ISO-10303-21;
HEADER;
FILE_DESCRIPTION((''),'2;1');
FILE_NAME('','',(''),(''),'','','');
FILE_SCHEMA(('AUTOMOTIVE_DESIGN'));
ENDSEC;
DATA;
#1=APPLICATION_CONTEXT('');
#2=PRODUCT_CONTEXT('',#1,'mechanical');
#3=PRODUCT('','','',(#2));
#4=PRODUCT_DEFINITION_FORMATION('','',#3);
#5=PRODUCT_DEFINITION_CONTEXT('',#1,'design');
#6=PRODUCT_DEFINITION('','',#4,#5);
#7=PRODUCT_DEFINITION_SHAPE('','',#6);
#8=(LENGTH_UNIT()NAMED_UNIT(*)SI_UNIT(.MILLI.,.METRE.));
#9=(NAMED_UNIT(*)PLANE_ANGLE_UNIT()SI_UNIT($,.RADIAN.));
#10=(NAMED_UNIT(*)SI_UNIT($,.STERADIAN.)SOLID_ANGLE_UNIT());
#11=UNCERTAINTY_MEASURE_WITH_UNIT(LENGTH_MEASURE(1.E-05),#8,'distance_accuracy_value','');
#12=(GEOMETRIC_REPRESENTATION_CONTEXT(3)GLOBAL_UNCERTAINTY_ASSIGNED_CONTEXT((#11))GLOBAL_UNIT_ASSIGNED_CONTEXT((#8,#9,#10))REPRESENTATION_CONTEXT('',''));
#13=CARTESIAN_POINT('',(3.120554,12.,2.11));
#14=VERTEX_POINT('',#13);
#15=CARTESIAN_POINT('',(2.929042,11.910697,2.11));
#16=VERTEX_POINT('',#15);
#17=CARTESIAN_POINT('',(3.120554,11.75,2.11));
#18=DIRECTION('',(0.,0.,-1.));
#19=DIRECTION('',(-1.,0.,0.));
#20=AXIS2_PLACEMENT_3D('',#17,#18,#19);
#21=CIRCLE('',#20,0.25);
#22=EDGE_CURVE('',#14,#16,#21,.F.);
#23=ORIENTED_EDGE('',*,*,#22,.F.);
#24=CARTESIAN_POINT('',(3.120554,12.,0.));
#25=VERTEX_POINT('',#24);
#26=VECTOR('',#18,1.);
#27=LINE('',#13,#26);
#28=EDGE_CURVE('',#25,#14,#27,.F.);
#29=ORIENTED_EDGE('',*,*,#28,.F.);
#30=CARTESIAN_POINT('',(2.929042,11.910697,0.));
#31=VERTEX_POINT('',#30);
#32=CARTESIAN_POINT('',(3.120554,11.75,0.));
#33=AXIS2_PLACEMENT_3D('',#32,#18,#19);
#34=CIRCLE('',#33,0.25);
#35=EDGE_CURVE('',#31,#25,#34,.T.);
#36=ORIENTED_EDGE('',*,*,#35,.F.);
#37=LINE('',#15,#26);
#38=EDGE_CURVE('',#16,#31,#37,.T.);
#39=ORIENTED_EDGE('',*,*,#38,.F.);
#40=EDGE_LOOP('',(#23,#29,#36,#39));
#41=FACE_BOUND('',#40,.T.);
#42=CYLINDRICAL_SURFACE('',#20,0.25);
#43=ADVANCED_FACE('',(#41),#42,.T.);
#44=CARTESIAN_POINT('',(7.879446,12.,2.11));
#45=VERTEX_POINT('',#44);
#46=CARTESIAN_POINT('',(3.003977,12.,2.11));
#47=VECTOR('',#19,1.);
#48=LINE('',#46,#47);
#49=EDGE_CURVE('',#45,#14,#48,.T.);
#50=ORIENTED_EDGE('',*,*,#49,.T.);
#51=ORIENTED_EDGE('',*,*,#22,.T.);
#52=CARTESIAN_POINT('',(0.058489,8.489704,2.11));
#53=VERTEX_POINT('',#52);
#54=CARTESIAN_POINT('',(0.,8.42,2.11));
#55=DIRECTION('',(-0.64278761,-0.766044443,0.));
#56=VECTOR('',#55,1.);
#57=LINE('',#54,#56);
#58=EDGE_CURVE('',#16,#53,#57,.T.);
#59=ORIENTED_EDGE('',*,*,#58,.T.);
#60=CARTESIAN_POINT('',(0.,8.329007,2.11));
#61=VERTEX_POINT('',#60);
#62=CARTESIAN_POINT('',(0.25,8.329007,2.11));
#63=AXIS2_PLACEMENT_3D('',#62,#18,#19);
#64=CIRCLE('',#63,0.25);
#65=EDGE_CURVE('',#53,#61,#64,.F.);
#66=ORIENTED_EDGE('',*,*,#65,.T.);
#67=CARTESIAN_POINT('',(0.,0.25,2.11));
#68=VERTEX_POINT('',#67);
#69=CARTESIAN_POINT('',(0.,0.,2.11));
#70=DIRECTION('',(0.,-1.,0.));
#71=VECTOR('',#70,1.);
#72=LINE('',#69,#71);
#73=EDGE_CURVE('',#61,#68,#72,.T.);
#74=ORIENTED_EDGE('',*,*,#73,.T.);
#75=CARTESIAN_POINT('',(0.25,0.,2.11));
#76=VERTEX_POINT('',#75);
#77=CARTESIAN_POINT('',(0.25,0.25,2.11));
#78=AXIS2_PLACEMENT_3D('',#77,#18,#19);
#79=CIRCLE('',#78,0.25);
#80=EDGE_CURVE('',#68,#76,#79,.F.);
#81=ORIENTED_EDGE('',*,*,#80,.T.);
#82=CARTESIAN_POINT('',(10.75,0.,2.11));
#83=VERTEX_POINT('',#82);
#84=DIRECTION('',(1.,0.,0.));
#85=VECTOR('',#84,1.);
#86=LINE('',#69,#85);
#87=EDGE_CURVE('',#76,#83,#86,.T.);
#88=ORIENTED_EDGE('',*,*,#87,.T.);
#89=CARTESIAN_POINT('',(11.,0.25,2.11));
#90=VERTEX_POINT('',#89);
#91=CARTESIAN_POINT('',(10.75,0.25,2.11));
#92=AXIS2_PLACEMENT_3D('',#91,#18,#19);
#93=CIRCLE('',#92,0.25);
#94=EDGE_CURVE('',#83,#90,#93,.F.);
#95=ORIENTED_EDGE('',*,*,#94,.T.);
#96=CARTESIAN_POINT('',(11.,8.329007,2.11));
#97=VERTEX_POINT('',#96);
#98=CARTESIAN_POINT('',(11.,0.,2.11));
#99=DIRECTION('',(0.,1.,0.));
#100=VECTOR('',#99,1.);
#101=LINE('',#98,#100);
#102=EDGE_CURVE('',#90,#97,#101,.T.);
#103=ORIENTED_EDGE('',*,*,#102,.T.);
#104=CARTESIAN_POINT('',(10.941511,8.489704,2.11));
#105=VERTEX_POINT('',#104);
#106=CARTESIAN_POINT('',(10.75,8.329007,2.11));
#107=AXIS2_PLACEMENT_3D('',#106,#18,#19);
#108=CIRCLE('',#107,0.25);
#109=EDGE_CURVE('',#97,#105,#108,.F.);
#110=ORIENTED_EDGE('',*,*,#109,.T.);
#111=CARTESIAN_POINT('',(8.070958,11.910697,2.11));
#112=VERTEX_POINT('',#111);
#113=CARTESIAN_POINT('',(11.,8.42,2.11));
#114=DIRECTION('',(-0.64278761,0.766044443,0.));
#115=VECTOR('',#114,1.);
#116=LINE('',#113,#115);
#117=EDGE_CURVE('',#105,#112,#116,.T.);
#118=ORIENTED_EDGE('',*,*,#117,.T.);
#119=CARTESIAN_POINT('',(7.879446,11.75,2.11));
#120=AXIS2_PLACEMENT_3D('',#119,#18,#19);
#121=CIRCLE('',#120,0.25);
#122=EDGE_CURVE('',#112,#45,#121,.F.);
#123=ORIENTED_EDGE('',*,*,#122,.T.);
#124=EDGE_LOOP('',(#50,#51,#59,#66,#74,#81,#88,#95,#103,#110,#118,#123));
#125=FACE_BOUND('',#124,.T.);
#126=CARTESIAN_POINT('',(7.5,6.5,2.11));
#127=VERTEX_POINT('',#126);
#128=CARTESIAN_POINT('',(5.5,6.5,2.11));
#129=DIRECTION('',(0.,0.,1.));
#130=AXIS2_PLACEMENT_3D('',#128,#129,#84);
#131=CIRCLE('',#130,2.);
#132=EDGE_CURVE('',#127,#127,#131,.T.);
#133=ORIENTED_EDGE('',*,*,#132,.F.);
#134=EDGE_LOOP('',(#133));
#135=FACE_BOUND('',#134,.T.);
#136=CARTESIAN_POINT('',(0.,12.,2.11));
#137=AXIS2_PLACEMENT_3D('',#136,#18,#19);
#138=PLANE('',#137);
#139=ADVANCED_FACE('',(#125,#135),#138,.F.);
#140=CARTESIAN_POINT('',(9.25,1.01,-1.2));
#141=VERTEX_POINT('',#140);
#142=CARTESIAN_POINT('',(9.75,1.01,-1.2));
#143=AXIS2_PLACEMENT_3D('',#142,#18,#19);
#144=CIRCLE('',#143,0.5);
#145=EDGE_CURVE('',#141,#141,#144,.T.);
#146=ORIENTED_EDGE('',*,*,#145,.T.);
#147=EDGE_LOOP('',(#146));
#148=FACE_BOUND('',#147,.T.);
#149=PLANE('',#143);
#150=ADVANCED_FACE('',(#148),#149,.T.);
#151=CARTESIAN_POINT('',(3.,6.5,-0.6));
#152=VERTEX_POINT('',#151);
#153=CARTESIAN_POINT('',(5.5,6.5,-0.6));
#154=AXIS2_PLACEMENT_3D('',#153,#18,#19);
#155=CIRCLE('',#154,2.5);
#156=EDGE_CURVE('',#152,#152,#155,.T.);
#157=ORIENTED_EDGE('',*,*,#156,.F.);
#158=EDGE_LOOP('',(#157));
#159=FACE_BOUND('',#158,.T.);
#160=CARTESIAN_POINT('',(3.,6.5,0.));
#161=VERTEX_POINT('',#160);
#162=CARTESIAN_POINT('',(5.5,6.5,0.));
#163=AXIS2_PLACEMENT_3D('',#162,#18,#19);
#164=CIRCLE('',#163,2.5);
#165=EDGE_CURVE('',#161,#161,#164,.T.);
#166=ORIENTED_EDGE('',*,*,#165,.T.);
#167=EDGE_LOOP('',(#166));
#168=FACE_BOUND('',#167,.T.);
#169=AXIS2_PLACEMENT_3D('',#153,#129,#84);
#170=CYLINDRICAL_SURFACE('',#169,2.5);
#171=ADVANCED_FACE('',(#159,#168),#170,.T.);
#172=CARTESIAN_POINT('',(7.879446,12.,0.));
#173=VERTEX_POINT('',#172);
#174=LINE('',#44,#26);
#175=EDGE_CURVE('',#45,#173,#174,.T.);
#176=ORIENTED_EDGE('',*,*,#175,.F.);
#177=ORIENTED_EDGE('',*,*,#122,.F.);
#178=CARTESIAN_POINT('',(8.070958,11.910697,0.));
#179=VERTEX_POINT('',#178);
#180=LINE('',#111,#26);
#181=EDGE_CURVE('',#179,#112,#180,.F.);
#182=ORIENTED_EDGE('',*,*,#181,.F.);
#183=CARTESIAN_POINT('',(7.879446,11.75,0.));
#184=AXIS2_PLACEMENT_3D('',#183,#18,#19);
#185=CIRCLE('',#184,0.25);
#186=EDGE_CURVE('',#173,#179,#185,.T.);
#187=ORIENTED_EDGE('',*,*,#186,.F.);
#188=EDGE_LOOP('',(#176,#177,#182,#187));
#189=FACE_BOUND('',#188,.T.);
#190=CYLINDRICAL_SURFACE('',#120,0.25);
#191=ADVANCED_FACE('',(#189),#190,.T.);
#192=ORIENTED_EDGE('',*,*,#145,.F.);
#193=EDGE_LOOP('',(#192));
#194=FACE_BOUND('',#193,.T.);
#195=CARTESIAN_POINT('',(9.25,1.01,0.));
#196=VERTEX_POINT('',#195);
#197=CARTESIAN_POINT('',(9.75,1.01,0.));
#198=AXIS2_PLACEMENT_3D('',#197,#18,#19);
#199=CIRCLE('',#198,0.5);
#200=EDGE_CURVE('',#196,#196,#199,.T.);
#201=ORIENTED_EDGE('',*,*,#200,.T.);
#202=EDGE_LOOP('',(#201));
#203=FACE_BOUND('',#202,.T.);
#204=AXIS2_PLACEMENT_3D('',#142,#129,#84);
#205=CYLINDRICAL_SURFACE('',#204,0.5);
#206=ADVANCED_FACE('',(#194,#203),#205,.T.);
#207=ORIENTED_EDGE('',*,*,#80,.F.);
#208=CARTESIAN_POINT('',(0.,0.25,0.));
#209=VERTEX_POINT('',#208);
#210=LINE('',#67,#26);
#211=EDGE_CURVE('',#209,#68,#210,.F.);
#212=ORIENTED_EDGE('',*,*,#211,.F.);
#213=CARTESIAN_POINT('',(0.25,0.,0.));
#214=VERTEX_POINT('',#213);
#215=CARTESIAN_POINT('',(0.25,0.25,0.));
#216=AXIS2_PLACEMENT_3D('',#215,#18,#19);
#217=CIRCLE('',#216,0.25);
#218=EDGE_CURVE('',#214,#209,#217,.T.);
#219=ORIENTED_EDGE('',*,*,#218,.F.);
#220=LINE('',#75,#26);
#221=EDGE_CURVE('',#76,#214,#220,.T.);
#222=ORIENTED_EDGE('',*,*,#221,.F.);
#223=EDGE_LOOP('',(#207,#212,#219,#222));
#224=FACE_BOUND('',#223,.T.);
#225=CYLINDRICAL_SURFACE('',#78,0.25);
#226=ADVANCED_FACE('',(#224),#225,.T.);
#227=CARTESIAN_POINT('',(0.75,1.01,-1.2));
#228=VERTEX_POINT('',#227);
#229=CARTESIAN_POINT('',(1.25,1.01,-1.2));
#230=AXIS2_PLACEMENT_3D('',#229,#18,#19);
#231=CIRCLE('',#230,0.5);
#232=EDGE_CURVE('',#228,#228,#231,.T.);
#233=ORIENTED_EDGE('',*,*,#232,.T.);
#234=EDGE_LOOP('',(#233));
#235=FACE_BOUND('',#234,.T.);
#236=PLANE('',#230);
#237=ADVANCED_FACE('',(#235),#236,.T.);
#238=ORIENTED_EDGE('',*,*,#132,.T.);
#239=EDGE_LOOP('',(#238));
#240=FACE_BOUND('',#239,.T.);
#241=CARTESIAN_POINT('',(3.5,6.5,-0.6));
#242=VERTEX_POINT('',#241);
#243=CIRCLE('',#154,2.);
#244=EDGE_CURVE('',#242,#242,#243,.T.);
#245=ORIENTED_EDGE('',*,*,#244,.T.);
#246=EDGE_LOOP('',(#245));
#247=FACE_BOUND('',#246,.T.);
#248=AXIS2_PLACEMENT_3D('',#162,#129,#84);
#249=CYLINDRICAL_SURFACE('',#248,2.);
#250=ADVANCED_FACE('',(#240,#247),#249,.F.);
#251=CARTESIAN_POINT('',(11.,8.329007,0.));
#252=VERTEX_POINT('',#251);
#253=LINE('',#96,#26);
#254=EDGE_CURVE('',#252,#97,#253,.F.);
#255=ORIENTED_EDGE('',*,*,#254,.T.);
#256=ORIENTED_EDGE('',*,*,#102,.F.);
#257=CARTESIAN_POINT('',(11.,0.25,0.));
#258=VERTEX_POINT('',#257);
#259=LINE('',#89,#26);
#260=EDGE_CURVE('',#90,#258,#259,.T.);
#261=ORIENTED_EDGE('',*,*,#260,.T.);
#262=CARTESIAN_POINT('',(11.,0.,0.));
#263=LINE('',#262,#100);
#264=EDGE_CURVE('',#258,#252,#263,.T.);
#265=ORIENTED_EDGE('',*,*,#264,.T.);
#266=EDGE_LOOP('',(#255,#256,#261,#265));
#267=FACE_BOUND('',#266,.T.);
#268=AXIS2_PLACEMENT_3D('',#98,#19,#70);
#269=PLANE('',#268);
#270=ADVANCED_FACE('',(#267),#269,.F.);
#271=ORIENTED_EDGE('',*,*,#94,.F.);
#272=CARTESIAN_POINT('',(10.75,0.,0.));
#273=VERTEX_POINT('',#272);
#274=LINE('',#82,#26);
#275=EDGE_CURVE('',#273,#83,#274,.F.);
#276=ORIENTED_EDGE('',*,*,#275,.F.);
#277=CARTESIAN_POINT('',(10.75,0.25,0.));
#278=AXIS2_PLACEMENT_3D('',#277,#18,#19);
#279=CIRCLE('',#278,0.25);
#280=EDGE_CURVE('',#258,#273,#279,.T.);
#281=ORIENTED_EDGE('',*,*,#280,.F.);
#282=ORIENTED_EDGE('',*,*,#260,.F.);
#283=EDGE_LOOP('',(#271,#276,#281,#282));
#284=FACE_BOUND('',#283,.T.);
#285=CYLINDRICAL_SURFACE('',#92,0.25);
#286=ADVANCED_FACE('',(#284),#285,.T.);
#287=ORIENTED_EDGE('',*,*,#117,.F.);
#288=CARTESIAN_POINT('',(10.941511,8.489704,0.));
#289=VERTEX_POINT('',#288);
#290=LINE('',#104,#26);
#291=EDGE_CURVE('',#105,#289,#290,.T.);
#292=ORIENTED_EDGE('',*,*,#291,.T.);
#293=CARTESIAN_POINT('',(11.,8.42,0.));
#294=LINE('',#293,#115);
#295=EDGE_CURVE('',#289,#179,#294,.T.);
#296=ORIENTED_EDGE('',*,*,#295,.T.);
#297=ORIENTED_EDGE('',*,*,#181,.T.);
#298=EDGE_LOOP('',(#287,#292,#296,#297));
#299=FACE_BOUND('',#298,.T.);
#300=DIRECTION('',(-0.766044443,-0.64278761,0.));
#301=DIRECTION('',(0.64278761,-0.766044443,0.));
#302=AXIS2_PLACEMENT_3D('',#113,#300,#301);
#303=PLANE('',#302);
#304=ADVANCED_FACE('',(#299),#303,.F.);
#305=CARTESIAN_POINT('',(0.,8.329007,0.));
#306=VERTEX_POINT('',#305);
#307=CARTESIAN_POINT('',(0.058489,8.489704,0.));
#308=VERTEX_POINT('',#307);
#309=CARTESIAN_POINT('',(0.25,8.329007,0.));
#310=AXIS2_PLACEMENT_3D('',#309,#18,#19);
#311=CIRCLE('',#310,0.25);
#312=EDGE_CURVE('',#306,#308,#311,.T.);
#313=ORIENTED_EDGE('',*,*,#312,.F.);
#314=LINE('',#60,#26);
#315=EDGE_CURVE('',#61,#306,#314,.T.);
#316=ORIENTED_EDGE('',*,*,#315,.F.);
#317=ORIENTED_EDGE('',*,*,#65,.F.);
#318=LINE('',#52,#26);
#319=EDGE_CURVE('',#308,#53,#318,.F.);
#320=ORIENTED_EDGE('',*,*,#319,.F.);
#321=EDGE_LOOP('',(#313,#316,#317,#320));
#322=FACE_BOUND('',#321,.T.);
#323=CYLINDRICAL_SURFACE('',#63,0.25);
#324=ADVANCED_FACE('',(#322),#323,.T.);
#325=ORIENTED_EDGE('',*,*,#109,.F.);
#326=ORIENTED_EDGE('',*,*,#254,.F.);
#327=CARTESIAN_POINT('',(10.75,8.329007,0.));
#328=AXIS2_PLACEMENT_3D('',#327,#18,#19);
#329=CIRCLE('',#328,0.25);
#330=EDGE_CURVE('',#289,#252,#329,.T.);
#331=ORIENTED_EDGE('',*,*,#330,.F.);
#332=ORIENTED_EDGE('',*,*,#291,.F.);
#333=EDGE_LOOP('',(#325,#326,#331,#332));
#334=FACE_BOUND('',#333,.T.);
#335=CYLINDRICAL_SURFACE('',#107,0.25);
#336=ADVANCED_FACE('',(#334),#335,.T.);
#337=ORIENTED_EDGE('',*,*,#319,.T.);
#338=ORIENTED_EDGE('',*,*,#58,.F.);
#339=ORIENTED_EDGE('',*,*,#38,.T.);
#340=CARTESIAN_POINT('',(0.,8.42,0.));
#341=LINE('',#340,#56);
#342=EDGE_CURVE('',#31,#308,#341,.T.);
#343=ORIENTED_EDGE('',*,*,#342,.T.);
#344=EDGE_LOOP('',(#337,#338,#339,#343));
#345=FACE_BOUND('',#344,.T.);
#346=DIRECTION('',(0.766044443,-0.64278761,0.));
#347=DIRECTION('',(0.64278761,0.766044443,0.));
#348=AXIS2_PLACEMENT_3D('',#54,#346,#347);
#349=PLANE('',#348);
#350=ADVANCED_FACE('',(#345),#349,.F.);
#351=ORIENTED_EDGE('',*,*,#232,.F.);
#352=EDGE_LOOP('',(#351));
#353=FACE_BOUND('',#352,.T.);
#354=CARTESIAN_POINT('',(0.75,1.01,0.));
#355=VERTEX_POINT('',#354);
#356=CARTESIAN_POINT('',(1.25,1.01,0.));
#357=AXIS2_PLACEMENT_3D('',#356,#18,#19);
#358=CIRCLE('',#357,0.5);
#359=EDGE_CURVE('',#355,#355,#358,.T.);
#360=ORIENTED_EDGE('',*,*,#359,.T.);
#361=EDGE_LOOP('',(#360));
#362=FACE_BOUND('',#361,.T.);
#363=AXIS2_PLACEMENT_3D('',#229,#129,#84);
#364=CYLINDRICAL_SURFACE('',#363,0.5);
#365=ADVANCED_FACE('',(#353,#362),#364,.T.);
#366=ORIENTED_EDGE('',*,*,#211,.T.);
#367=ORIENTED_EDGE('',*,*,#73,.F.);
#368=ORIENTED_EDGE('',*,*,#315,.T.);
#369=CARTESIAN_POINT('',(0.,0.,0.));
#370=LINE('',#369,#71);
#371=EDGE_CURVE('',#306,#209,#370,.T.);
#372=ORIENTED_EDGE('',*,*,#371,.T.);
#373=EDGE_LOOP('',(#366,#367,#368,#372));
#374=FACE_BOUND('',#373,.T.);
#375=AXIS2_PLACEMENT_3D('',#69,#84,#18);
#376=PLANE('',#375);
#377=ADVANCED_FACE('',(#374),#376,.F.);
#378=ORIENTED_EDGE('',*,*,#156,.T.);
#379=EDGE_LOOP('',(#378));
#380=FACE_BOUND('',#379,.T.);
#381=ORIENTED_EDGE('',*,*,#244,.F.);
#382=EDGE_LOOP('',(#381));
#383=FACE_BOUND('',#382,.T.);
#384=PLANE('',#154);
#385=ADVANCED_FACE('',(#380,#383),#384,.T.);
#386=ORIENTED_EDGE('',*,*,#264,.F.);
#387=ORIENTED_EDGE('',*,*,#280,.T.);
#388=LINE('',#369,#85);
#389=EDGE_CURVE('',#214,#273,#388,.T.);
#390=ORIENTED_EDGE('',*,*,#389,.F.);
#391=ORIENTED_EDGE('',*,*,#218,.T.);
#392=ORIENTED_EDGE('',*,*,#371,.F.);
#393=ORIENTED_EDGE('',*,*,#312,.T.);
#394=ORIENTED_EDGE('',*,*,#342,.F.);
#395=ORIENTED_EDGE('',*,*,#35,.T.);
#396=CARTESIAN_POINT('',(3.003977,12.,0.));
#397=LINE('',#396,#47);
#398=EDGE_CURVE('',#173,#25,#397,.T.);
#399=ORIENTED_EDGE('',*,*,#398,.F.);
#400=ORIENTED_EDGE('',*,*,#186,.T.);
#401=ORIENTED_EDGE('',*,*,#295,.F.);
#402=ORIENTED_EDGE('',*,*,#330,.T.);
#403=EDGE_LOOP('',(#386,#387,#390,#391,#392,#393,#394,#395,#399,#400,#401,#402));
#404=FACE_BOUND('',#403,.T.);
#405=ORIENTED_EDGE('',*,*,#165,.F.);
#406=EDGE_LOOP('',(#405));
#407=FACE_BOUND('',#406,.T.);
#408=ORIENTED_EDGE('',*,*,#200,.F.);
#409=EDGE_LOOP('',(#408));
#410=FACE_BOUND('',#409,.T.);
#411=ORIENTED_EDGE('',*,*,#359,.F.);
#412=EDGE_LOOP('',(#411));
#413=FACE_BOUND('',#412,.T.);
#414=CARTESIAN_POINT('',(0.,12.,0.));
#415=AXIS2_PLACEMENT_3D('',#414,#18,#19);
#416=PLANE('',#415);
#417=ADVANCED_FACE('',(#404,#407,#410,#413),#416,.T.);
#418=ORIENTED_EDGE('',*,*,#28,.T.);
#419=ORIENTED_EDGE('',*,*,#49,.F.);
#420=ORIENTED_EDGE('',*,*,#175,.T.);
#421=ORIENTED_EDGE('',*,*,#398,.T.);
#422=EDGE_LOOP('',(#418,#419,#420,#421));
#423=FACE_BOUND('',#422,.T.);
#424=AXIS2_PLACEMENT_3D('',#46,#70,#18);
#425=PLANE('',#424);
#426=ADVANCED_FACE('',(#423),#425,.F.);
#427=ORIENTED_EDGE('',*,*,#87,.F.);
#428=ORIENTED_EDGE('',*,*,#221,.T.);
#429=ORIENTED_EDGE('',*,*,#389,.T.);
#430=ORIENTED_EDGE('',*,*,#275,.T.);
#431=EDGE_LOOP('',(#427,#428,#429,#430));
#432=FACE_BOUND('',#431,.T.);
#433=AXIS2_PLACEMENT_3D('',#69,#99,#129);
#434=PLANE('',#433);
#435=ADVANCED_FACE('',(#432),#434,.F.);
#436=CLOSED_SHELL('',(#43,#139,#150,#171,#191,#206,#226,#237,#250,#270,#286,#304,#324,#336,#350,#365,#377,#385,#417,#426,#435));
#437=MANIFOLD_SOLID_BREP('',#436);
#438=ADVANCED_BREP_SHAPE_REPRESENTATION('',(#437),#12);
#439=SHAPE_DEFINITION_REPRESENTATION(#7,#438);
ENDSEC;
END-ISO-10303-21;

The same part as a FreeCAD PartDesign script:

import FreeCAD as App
import Part
import Sketcher
from FreeCAD import Vector
Q = App.Units.Quantity


def edges_at(feature, points):
    """Names of the edges that pass closest to the given points."""
    edges = feature.Shape.Edges
    near = lambda p: min(range(len(edges)), key=lambda i: edges[i].distToShape(Part.Vertex(*p))[0])
    return sorted({f"Edge{near(p) + 1}" for p in points})

doc = App.newDocument("Part")
body = doc.addObject("PartDesign::Body", "Body")

# Sketch on XY plane
sketch1 = doc.addObject("Sketcher::SketchObject", "Sketch")
body.addObject(sketch1)
sketch1.AttachmentSupport = (doc.XY_Plane, [""])
sketch1.MapMode = "FlatFace"
sketch1.addGeometry([
    Part.LineSegment(Vector(3.003977, 12, 0), Vector(0, 8.42, 0)),  # 0
    Part.LineSegment(Vector(0, 8.42, 0), Vector(0, 0, 0)),  # 1
    Part.LineSegment(Vector(0, 0, 0), Vector(11, 0, 0)),  # 2
    Part.LineSegment(Vector(11, 0, 0), Vector(11, 8.42, 0)),  # 3
    Part.LineSegment(Vector(11, 8.42, 0), Vector(7.996023, 12, 0)),  # 4
    Part.LineSegment(Vector(7.996023, 12, 0), Vector(3.003977, 12, 0)),  # 5
], False)
sketch1.addConstraint([
    Sketcher.Constraint("Coincident", 0, 2, 1, 1),
    Sketcher.Constraint("Coincident", 1, 2, 2, 1),
    Sketcher.Constraint("Coincident", 2, 2, 3, 1),
    Sketcher.Constraint("Coincident", 3, 2, 4, 1),
    Sketcher.Constraint("Coincident", 4, 2, 5, 1),
    Sketcher.Constraint("Coincident", 5, 2, 0, 1),
    Sketcher.Constraint("Vertical", 1),
    Sketcher.Constraint("Horizontal", 2),
    Sketcher.Constraint("Vertical", 3),
    Sketcher.Constraint("Horizontal", 5),
    Sketcher.Constraint("Coincident", 1, 2, -1, 1),
    Sketcher.Constraint("Horizontal", 0, 2, 3, 2),
    Sketcher.Constraint("Equal", 0, 4),
    Sketcher.Constraint("DistanceX", 2, 1, 2, 2, Q("11 mm")),
    Sketcher.Constraint("Angle", 0, Q("-130 deg")),
    Sketcher.Constraint("DistanceY", -1, 1, 4, 2, Q("12 mm")),
    Sketcher.Constraint("DistanceY", 1, 2, 1, 1, Q("8.42 mm")),
])
pad1 = doc.addObject("PartDesign::Pad", "Pad")
body.addObject(pad1)
pad1.Profile = sketch1
pad1.Length = 2.11
doc.recompute()

fillet = doc.addObject("PartDesign::Fillet", "Fillet")
body.addObject(fillet)
fillet.Base = (pad1, edges_at(pad1, [
    (0, 8.42, 1.055),
    (3.004, 12, 1.055),
    (7.996, 12, 1.055),
    (11, 8.42, 1.055),
    (11, 0, 1.055),
    (0, 0, 1.055),
]))
fillet.Radius = 0.25

# Sketch on XY plane
sketch2 = doc.addObject("Sketcher::SketchObject", "Sketch001")
body.addObject(sketch2)
sketch2.AttachmentSupport = (doc.XY_Plane, [""])
sketch2.MapMode = "FlatFace"
sketch2.AttachmentOffset = App.Placement(Vector(0, 0, 2.11), App.Rotation())
sketch2.addGeometry(Part.Circle(Vector(5.5, 6.5, 0), Vector(0, 0, 1), 2), False)
sketch2.addConstraint([
    Sketcher.Constraint("Diameter", 0, Q("4 mm")),
    Sketcher.Constraint("DistanceX", -1, 1, 0, 3, Q("5.5 mm")),
    Sketcher.Constraint("DistanceY", -1, 1, 0, 3, Q("6.5 mm")),
])
pocket1 = doc.addObject("PartDesign::Pocket", "Pocket")
body.addObject(pocket1)
pocket1.Profile = sketch2
pocket1.Type = "ThroughAll"

# Sketch on XY plane
sketch3 = doc.addObject("Sketcher::SketchObject", "Sketch002")
body.addObject(sketch3)
sketch3.AttachmentSupport = (doc.XY_Plane, [""])
sketch3.MapMode = "FlatFace"
sketch3.addGeometry([
    Part.Circle(Vector(5.5, 6.5, 0), Vector(0, 0, 1), 2.5),
    Part.Circle(Vector(5.5, 6.5, 0), Vector(0, 0, 1), 2),
], False)
sketch3.addConstraint([
    Sketcher.Constraint("Coincident", 1, 3, 0, 3),
    Sketcher.Constraint("Diameter", 0, Q("5 mm")),
    Sketcher.Constraint("Diameter", 1, Q("4 mm")),
    Sketcher.Constraint("DistanceX", -1, 1, 0, 3, Q("5.5 mm")),
    Sketcher.Constraint("DistanceY", -1, 1, 0, 3, Q("6.5 mm")),
])
pad2 = doc.addObject("PartDesign::Pad", "Pad001")
body.addObject(pad2)
pad2.Profile = sketch3
pad2.Length = 0.6
pad2.Reversed = True

# Sketch on XY plane
sketch4 = doc.addObject("Sketcher::SketchObject", "Sketch003")
body.addObject(sketch4)
sketch4.AttachmentSupport = (doc.XY_Plane, [""])
sketch4.MapMode = "FlatFace"
sketch4.addGeometry([
    Part.Circle(Vector(9.75, 1.01, 0), Vector(0, 0, 1), 0.5),
    Part.Circle(Vector(1.25, 1.01, 0), Vector(0, 0, 1), 0.5),
], False)
sketch4.addConstraint([
    Sketcher.Constraint("Equal", 0, 1),
    Sketcher.Constraint("Horizontal", 0, 3, 1, 3),
    Sketcher.Constraint("Diameter", 0, Q("1 mm")),
    Sketcher.Constraint("DistanceX", 1, 3, 0, 3, Q("8.5 mm")),
    Sketcher.Constraint("DistanceX", -1, 1, 0, 3, Q("9.75 mm")),
    Sketcher.Constraint("DistanceY", -1, 1, 0, 3, Q("1.01 mm")),
])
pad3 = doc.addObject("PartDesign::Pad", "Pad002")
body.addObject(pad3)
pad3.Profile = sketch4
pad3.Length = 1.2
pad3.Reversed = True

doc.recompute()
